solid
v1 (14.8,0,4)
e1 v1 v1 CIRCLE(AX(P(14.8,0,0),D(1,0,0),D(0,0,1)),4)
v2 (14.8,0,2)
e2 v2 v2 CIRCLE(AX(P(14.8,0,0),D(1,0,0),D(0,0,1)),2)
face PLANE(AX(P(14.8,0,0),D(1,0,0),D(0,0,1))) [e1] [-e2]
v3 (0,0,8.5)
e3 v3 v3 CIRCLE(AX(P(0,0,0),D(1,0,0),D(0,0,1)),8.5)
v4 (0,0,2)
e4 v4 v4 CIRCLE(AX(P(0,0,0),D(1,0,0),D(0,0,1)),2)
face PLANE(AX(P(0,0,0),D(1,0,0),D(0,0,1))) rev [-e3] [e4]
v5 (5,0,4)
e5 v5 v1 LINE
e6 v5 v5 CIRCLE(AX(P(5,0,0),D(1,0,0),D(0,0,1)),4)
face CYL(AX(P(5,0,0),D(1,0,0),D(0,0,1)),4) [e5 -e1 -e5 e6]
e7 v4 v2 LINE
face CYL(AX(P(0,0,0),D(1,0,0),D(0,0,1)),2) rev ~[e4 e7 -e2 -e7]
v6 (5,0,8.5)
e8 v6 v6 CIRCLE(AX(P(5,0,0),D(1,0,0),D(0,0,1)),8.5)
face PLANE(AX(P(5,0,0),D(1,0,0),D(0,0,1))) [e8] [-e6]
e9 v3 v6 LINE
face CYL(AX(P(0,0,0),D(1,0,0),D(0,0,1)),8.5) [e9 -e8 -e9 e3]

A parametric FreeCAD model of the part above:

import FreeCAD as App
import Part
import Sketcher
from FreeCAD import Vector


def add_polygon(sketch, points):
    """Adds a closed chain of lines whose ends are joined by coincident constraints."""
    first, n = sketch.GeometryCount, len(points)
    for a, b in zip(points, points[1:] + points[:1]):
        sketch.addGeometry(Part.LineSegment(App.Vector(*a, 0), App.Vector(*b, 0)), False)
    for i in range(n):
        sketch.addConstraint(Sketcher.Constraint("Coincident", first + i, 2, first + (i + 1) % n, 1))

doc = App.newDocument("Part")
params = doc.addObject("Spreadsheet::Sheet", "Params")
for row, (alias, value) in enumerate([
    ("sketch1_width", "5 mm"),
    ("sketch1_height", "2 mm"),
    ("sketch1_width2", "14.8 mm"),
    ("sketch1_height2", "6.5 mm"),
    ("revolution_angle", "360 deg"),
], start=1):
    params.set(f"A{row}", alias)
    params.set(f"B{row}", "=" + value)
    params.setAlias(f"B{row}", alias)

body = doc.addObject("PartDesign::Body", "Body")

# Sketch on XZ plane
sketch1 = body.newObject("Sketcher::SketchObject", "Sketch")
sketch1.AttachmentSupport = (doc.getObject("XZ_Plane"), [""])
sketch1.MapMode = "FlatFace"
add_polygon(sketch1, [(0, 8.5), (0, 2), (14.8, 2), (14.8, 4), (5, 4), (5, 8.5)])  # lines 0-5
sketch1.addConstraint([
    Sketcher.Constraint("Vertical", 0),
    Sketcher.Constraint("Horizontal", 1),
    Sketcher.Constraint("Vertical", 2),
    Sketcher.Constraint("Horizontal", 3),
    Sketcher.Constraint("Vertical", 4),
    Sketcher.Constraint("Horizontal", 5),
    Sketcher.Constraint("PointOnObject", 0, 2, -2),
    Sketcher.Constraint("DistanceX", 5, 2, 5, 1, 5.0),
    Sketcher.Constraint("DistanceY", 2, 1, 2, 2, 2.0),
    Sketcher.Constraint("DistanceX", 1, 1, 1, 2, 14.8),
    Sketcher.Constraint("DistanceY", 0, 2, 0, 1, 6.5),
    Sketcher.Constraint("DistanceY", -1, 1, 0, 2, 2.0),
])
sketch1.setExpression("Constraints[13]", "Params.sketch1_width")
sketch1.setExpression("Constraints[14]", "Params.sketch1_height")
sketch1.setExpression("Constraints[15]", "Params.sketch1_width2")
sketch1.setExpression("Constraints[16]", "Params.sketch1_height2")
revolution = body.newObject("PartDesign::Revolution", "Revolution")
revolution.Profile = sketch1
revolution.ReferenceAxis = (sketch1, ["H_Axis"])
revolution.setExpression("Angle", "Params.revolution_angle")

doc.recompute()
